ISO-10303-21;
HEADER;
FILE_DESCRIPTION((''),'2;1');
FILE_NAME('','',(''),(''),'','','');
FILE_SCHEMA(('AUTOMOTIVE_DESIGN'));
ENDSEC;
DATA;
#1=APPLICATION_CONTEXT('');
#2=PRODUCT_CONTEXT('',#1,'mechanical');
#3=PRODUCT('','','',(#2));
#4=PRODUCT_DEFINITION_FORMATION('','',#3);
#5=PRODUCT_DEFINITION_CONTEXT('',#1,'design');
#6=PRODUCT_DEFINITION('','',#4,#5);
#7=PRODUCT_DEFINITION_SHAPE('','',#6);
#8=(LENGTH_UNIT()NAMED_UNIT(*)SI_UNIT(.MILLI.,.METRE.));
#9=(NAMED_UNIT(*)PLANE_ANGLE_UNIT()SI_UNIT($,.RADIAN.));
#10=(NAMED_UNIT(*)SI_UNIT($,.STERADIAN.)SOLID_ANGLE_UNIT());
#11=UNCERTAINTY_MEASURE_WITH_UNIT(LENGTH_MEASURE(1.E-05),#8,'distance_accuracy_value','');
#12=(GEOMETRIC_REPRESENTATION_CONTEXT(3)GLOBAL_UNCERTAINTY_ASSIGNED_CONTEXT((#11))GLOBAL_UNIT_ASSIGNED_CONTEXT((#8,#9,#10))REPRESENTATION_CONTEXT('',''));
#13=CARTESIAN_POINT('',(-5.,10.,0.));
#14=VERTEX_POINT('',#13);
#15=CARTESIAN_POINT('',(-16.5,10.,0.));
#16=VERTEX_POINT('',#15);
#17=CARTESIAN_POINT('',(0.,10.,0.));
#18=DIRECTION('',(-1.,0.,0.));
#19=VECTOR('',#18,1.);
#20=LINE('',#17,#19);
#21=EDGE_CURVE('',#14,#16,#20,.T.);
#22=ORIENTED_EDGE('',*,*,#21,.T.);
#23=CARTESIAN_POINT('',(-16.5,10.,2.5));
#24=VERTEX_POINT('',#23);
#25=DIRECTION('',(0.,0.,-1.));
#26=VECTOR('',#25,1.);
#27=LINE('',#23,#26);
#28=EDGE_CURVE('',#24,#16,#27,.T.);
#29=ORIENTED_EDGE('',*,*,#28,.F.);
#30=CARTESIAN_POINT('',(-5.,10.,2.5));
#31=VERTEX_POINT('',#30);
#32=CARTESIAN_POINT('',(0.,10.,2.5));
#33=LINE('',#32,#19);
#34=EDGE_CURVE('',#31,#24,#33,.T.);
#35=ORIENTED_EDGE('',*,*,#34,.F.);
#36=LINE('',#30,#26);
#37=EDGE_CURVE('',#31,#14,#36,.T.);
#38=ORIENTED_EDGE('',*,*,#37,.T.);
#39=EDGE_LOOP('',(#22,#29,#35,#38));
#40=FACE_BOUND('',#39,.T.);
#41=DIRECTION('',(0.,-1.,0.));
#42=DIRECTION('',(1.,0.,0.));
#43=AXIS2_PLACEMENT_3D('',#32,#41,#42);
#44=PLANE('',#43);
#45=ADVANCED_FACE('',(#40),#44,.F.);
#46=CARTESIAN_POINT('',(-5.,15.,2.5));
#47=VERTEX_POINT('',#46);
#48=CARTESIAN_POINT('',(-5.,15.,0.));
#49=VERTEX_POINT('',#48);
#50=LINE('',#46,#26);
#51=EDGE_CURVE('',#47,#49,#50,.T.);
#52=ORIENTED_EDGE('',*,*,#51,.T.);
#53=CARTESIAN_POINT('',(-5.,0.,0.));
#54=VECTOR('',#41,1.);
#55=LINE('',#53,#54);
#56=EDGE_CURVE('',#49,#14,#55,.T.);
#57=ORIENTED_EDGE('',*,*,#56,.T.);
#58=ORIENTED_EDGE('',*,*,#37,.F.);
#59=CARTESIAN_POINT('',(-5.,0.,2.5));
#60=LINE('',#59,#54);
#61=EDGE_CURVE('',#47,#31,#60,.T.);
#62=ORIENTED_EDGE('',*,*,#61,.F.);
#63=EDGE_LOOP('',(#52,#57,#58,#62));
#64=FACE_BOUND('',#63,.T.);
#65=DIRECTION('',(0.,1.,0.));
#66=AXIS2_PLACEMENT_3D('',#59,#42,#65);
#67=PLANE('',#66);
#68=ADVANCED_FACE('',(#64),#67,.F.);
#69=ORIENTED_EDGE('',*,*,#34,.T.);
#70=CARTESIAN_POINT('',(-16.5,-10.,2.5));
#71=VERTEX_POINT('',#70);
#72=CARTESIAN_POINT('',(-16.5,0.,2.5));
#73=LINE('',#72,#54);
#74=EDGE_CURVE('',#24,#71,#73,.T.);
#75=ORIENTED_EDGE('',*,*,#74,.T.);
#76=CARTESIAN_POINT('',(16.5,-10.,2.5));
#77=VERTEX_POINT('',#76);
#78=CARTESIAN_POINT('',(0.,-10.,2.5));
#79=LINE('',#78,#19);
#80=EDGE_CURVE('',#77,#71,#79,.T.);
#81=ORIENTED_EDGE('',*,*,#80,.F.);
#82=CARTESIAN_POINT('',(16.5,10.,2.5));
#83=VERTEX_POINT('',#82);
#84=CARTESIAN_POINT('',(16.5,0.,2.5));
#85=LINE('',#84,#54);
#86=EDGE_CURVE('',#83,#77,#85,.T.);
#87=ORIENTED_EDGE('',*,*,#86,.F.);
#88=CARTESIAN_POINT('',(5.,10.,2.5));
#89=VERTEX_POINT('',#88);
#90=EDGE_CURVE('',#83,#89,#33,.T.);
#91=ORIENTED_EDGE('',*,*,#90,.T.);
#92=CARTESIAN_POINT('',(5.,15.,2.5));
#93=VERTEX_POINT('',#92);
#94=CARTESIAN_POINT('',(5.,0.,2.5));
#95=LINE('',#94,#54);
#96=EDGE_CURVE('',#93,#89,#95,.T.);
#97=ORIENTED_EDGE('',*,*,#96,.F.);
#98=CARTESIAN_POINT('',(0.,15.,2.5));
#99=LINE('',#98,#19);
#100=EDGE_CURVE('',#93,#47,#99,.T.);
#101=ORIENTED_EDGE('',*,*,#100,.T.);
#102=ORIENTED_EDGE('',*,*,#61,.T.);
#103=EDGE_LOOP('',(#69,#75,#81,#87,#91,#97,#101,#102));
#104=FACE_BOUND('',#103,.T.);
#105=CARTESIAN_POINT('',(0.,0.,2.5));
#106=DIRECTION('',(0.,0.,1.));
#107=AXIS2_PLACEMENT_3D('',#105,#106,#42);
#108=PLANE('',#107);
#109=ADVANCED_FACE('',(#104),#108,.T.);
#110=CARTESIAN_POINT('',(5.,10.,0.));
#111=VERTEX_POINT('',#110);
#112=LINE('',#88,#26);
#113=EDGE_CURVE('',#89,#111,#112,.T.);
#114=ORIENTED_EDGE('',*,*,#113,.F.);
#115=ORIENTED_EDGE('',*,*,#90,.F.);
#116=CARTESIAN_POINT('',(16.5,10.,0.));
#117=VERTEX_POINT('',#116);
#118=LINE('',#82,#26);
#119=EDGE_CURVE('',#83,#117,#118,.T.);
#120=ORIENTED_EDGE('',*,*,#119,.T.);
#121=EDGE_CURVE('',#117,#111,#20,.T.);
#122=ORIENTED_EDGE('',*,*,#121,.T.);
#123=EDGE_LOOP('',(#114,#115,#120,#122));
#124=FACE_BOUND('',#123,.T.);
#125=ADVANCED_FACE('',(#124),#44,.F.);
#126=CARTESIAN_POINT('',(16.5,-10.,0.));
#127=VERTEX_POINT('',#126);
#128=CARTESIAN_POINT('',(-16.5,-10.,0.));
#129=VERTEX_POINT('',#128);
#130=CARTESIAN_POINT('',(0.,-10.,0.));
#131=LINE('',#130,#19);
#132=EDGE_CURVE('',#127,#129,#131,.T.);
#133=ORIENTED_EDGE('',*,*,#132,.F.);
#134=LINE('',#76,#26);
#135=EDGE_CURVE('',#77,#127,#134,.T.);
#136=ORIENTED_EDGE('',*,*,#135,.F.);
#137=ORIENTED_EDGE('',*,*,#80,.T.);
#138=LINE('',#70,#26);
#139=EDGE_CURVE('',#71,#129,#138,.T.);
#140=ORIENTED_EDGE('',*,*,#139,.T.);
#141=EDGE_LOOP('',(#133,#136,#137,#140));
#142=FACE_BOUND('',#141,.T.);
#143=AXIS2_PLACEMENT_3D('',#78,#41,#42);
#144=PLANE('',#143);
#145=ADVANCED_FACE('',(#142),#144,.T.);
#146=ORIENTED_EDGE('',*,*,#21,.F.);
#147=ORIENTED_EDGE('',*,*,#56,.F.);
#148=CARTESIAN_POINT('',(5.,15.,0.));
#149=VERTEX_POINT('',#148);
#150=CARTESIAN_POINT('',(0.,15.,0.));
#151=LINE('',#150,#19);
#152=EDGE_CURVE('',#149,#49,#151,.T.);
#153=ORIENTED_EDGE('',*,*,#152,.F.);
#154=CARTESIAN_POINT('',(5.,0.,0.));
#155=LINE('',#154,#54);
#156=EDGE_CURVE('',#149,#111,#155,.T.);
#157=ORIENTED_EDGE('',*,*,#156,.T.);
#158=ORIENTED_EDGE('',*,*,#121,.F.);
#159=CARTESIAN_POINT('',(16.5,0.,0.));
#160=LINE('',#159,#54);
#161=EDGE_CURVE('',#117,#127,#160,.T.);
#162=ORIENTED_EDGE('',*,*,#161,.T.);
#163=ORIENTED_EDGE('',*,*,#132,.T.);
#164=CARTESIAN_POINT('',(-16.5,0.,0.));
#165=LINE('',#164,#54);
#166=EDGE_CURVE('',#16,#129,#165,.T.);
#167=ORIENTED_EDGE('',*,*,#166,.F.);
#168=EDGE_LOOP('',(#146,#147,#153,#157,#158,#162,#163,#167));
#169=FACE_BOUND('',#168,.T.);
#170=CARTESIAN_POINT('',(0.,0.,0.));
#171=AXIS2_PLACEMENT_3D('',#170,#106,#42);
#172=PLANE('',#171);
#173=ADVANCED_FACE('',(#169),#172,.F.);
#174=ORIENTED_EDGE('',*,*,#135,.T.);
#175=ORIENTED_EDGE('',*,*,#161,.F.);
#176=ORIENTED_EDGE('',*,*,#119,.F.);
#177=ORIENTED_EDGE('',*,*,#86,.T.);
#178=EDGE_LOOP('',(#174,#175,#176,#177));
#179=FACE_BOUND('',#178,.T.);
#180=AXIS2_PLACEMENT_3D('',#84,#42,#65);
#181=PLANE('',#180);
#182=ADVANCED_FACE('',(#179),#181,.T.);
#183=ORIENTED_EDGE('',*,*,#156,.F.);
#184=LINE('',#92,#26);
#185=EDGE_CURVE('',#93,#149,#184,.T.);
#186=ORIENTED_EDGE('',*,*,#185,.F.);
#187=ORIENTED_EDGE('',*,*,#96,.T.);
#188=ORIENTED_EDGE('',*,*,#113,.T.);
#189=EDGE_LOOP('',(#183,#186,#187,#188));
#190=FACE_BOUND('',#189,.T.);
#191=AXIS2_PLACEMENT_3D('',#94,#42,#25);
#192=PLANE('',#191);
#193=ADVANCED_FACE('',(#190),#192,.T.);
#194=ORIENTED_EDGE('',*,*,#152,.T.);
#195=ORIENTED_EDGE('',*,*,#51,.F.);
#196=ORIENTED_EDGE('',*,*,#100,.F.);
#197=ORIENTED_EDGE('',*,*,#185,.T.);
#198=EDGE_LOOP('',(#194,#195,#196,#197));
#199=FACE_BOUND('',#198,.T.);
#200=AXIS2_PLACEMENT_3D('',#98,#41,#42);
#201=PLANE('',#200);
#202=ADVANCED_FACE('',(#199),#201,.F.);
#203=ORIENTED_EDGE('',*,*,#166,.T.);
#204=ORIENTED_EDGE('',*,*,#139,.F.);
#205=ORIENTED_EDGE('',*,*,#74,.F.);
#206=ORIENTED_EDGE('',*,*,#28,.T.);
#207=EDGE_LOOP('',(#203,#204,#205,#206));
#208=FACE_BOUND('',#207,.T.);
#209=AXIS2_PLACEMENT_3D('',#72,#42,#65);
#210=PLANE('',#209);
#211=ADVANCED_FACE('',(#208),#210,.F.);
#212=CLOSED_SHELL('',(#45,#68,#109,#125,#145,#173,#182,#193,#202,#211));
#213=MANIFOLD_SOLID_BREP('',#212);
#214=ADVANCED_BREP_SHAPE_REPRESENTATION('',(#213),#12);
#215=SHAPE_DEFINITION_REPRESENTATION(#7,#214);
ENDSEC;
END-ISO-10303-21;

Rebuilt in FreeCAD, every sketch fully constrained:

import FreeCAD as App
import Part
import Sketcher
Q = App.Units.Quantity

doc = App.newDocument("Part")
body = doc.addObject("PartDesign::Body", "Body")

# Sketch on XY plane
sketch1 = doc.addObject("Sketcher::SketchObject", "Sketch")
body.addObject(sketch1)
sketch1.AttachmentSupport = (doc.XY_Plane, [""])
sketch1.MapMode = "FlatFace"
sketch1.addGeometry([
    Part.LineSegment(App.Vector(-5, 15, 0), App.Vector(-5, 10, 0)),  # 0
    Part.LineSegment(App.Vector(-5, 10, 0), App.Vector(-16, 10, 0)),  # 1
    Part.LineSegment(App.Vector(-16, 10, 0), App.Vector(-16, -10, 0)),  # 2
    Part.LineSegment(App.Vector(-16, -10, 0), App.Vector(16, -10, 0)),  # 3
    Part.LineSegment(App.Vector(16, -10, 0), App.Vector(16, 10, 0)),  # 4
    Part.LineSegment(App.Vector(16, 10, 0), App.Vector(5, 10, 0)),  # 5
    Part.LineSegment(App.Vector(5, 10, 0), App.Vector(5, 15, 0)),  # 6
    Part.LineSegment(App.Vector(5, 15, 0), App.Vector(-5, 15, 0)),  # 7
], False)
sketch1.addConstraint([
    Sketcher.Constraint("Coincident", 0, 2, 1, 1),
    Sketcher.Constraint("Coincident", 1, 2, 2, 1),
    Sketcher.Constraint("Coincident", 2, 2, 3, 1),
    Sketcher.Constraint("Coincident", 3, 2, 4, 1),
    Sketcher.Constraint("Coincident", 4, 2, 5, 1),
    Sketcher.Constraint("Coincident", 5, 2, 6, 1),
    Sketcher.Constraint("Coincident", 6, 2, 7, 1),
    Sketcher.Constraint("Coincident", 7, 2, 0, 1),
    Sketcher.Constraint("Vertical", 0),
    Sketcher.Constraint("Horizontal", 1),
    Sketcher.Constraint("Vertical", 2),
    Sketcher.Constraint("Horizontal", 3),
    Sketcher.Constraint("Vertical", 4),
    Sketcher.Constraint("Horizontal", 5),
    Sketcher.Constraint("Vertical", 6),
    Sketcher.Constraint("Horizontal", 7),
    Sketcher.Constraint("Symmetric", 1, 2, 3, 2, -1, 1),
    Sketcher.Constraint("Symmetric", 0, 2, 5, 2, -2),
    Sketcher.Constraint("DistanceX", 3, 1, 3, 2, Q("33 mm")),
    Sketcher.Constraint("DistanceX", 7, 2, 7, 1, Q("10 mm")),
    Sketcher.Constraint("DistanceY", 0, 2, 0, 1, Q("5 mm")),
    Sketcher.Constraint("DistanceY", 2, 2, 2, 1, Q("20 mm")),
])
pad1 = doc.addObject("PartDesign::Pad", "Pad")
body.addObject(pad1)
pad1.Profile = sketch1
pad1.Length = 2.5

doc.recompute()
